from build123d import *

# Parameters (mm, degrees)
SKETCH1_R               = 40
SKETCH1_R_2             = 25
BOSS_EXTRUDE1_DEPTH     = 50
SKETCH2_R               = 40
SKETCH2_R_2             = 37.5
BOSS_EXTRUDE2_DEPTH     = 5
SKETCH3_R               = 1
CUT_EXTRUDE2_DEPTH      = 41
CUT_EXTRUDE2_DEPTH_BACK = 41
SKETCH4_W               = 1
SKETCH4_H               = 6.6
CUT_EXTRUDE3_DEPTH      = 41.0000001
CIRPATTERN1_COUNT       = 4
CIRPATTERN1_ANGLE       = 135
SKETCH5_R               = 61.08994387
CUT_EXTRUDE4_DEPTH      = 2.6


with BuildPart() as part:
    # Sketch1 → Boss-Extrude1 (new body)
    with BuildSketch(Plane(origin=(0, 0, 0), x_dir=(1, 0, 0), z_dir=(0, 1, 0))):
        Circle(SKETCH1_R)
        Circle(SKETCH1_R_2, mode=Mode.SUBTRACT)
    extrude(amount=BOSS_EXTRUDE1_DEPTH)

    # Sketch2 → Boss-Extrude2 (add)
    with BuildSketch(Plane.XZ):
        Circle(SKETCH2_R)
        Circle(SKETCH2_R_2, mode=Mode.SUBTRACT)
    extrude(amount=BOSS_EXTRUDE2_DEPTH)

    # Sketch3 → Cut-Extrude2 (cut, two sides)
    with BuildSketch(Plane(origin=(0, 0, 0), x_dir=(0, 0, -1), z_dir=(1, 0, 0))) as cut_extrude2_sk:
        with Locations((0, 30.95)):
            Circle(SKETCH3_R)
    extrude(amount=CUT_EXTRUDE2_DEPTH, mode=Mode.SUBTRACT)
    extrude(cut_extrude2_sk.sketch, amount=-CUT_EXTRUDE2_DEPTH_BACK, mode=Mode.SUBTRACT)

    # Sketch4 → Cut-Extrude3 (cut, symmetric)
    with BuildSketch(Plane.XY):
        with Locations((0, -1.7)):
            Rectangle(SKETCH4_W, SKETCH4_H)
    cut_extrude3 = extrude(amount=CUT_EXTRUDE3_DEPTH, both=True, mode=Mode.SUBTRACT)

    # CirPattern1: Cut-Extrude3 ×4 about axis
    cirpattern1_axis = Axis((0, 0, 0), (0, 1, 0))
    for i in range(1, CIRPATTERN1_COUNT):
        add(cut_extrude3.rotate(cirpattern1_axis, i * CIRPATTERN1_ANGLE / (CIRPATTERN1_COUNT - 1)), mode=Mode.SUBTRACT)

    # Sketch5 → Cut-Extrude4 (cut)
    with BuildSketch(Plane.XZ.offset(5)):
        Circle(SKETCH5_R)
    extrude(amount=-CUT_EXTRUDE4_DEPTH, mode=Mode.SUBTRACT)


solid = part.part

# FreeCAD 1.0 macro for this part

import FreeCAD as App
import Part
import Sketcher

V = App.Vector
Q = App.Units.Quantity


def add_polygon(sketch, points):
    """Adds a closed chain of lines whose ends are joined by coincident constraints."""
    first, n = sketch.GeometryCount, len(points)
    for a, b in zip(points, points[1:] + points[:1]):
        sketch.addGeometry(Part.LineSegment(App.Vector(*a, 0), App.Vector(*b, 0)), False)
    for i in range(n):
        sketch.addConstraint(Sketcher.Constraint("Coincident", first + i, 2, first + (i + 1) % n, 1))

doc = App.newDocument("Part")
params = doc.addObject("Spreadsheet::Sheet", "Params")
for row, (alias, value) in enumerate([
    ("sketch1_diameter", "80 mm"),
    ("sketch1_diameter2", "50 mm"),
    ("pad1_length", "50 mm"),
    ("sketch2_diameter", "80 mm"),
    ("sketch2_diameter2", "75 mm"),
    ("pad2_length", "5 mm"),
    ("sketch3_diameter", "2 mm"),
    ("sketch4_width", "1 mm"),
    ("sketch4_height", "6.6 mm"),
    ("pocket2_length", "82 mm"),
    ("pocket3_length", "2.6 mm"),
], start=1):
    params.set(f"A{row}", alias)
    params.set(f"B{row}", "=" + value)
    params.setAlias(f"B{row}", alias)

body = doc.addObject("PartDesign::Body", "Body")

sketch1 = doc.addObject("Sketcher::SketchObject", "Sketch")
body.addObject(sketch1)
sketch1.AttachmentSupport = (doc.XZ_Plane, [""])
sketch1.MapMode = "FlatFace"
sketch1.addGeometry(Part.Circle(V(0, 0, 0), V(0, 0, 1), 40), False)
sketch1.addGeometry(Part.Circle(V(0, 0, 0), V(0, 0, 1), 25), False)
sketch1.addConstraint(Sketcher.Constraint("Coincident", 0, 3, -1, 1))
sketch1.addConstraint(Sketcher.Constraint("Coincident", 1, 3, -1, 1))
sketch1.addConstraint(Sketcher.Constraint("Diameter", 0, Q("80 mm")))
sketch1.addConstraint(Sketcher.Constraint("Diameter", 1, Q("50 mm")))
sketch1.setExpression("Constraints[2]", "Params.sketch1_diameter")
sketch1.setExpression("Constraints[3]", "Params.sketch1_diameter2")
pad1 = doc.addObject("PartDesign::Pad", "Pad")
body.addObject(pad1)
pad1.Profile = sketch1
pad1.setExpression("Length", "Params.pad1_length")
pad1.Reversed = True

sketch2 = doc.addObject("Sketcher::SketchObject", "Sketch001")
body.addObject(sketch2)
sketch2.AttachmentSupport = (doc.XZ_Plane, [""])
sketch2.MapMode = "FlatFace"
sketch2.addGeometry(Part.Circle(V(0, 0, 0), V(0, 0, 1), 40), False)
sketch2.addGeometry(Part.Circle(V(0, 0, 0), V(0, 0, 1), 38), False)
sketch2.addConstraint(Sketcher.Constraint("Coincident", 0, 3, -1, 1))
sketch2.addConstraint(Sketcher.Constraint("Coincident", 1, 3, -1, 1))
sketch2.addConstraint(Sketcher.Constraint("Diameter", 0, Q("80 mm")))
sketch2.addConstraint(Sketcher.Constraint("Diameter", 1, Q("75 mm")))
sketch2.setExpression("Constraints[2]", "Params.sketch2_diameter")
sketch2.setExpression("Constraints[3]", "Params.sketch2_diameter2")
pad2 = doc.addObject("PartDesign::Pad", "Pad001")
body.addObject(pad2)
pad2.Profile = sketch2
pad2.setExpression("Length", "Params.pad2_length")

sketch3 = doc.addObject("Sketcher::SketchObject", "Sketch002")
body.addObject(sketch3)
sketch3.AttachmentSupport = (doc.YZ_Plane, [""])
sketch3.MapMode = "FlatFace"
sketch3.addGeometry(Part.Circle(V(30.9, 0, 0), V(0, 0, 1), 1), False)
sketch3.addConstraint(Sketcher.Constraint("PointOnObject", 0, 3, -1))
sketch3.addConstraint(Sketcher.Constraint("Diameter", 0, Q("2 mm")))
sketch3.addConstraint(Sketcher.Constraint("DistanceX", -1, 1, 0, 3, Q("30.95 mm")))
sketch3.setExpression("Constraints[1]", "Params.sketch3_diameter")
pocket1 = doc.addObject("PartDesign::Pocket", "Pocket")
body.addObject(pocket1)
pocket1.Profile = sketch3
pocket1.Type = "ThroughAll"
pocket1.Midplane = True

sketch4 = doc.addObject("Sketcher::SketchObject", "Sketch003")
body.addObject(sketch4)
sketch4.AttachmentSupport = (doc.XY_Plane, [""])
sketch4.MapMode = "FlatFace"
add_polygon(sketch4, [(-0.5, 1.6), (-0.5, -5), (0.5, -5), (0.5, 1.6)])
sketch4.addConstraint(Sketcher.Constraint("Vertical", 0))
sketch4.addConstraint(Sketcher.Constraint("Horizontal", 1))
sketch4.addConstraint(Sketcher.Constraint("Vertical", 2))
sketch4.addConstraint(Sketcher.Constraint("Horizontal", 3))
sketch4.addConstraint(Sketcher.Constraint("DistanceX", 1, 1, 1, 2, Q("1 mm")))
sketch4.addConstraint(Sketcher.Constraint("DistanceY", 0, 2, 0, 1, Q("6.6 mm")))
sketch4.addConstraint(Sketcher.Constraint("DistanceY", 0, 2, -1, 1, Q("5 mm")))
sketch4.addConstraint(Sketcher.Constraint("DistanceX", 0, 2, -1, 1, Q("0.5 mm")))
sketch4.setExpression("Constraints[8]", "Params.sketch4_width")
sketch4.setExpression("Constraints[9]", "Params.sketch4_height")
pocket2 = doc.addObject("PartDesign::Pocket", "Pocket001")
body.addObject(pocket2)
pocket2.Profile = sketch4
pocket2.setExpression("Length", "Params.pocket2_length")
pocket2.Midplane = True
doc.recompute()

polarpattern = doc.addObject("PartDesign::PolarPattern", "PolarPattern")
body.addObject(polarpattern)
polarpattern.Originals = [pocket2]
polarpattern.Axis = (doc.Y_Axis, [""])
polarpattern.Angle = 135
polarpattern.Occurrences = 4
body.Tip = polarpattern

sketch5 = doc.addObject("Sketcher::SketchObject", "Sketch004")
body.addObject(sketch5)
sketch5.AttachmentSupport = (doc.XZ_Plane, [""])
sketch5.MapMode = "FlatFace"
sketch5.AttachmentOffset = App.Placement(V(0, 0, 5), App.Rotation())
sketch5.addGeometry(Part.Circle(V(0, 0, 0), V(0, 0, 1), 61), False)
sketch5.addConstraint(Sketcher.Constraint("Coincident", 0, 3, -1, 1))
sketch5.addConstraint(Sketcher.Constraint("Diameter", 0, Q("122.179888 mm")))
pocket3 = doc.addObject("PartDesign::Pocket", "Pocket002")
body.addObject(pocket3)
pocket3.Profile = sketch5
pocket3.setExpression("Length", "Params.pocket3_length")

doc.recompute()
